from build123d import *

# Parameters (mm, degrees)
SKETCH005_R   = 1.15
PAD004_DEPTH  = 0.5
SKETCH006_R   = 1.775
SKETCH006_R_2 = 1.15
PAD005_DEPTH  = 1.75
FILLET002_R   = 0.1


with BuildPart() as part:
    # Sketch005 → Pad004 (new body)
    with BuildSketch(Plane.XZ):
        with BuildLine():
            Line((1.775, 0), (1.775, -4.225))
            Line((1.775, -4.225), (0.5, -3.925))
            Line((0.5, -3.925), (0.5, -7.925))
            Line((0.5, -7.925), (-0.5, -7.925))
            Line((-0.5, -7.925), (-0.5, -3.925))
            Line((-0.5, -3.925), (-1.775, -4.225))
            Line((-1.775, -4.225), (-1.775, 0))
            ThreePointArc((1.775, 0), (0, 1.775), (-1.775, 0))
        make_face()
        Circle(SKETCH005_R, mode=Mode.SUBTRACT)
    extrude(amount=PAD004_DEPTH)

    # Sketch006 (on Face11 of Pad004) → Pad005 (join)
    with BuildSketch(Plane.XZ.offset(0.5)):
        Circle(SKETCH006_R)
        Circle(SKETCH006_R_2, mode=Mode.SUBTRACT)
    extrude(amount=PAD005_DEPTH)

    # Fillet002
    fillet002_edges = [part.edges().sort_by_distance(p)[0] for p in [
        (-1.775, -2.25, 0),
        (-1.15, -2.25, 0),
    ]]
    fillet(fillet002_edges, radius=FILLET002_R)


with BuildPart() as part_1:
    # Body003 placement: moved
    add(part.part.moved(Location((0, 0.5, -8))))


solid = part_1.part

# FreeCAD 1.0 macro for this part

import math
import FreeCAD as App
import Part
import Sketcher
from FreeCAD import Vector


def edges_at(feature, points):
    """Names of the edges that pass closest to the given points."""
    edges = feature.Shape.Edges
    near = lambda p: min(range(len(edges)), key=lambda i: edges[i].distToShape(Part.Vertex(*p))[0])
    return sorted({f"Edge{near(p) + 1}" for p in points})

doc = App.newDocument("Part")
body = doc.addObject("PartDesign::Body", "Body")

sketch1 = body.newObject("Sketcher::SketchObject", "Sketch")
sketch1.AttachmentSupport = (doc.getObject("XZ_Plane"), [""])
sketch1.MapMode = "FlatFace"
sketch1.addGeometry([
    Part.LineSegment(Vector(1.8, -4.2, 0), Vector(1.8, 0, 0)),
    Part.ArcOfCircle(Part.Circle(Vector(0, 0, 0), Vector(0, 0, 1), 1.8), math.radians(0), math.radians(180)),
    Part.LineSegment(Vector(-1.8, 0, 0), Vector(-1.8, -4.2, 0)),
    Part.LineSegment(Vector(-1.8, -4.2, 0), Vector(-0.5, -3.9, 0)),
    Part.LineSegment(Vector(-0.5, -3.9, 0), Vector(-0.5, -7.9, 0)),
    Part.LineSegment(Vector(-0.5, -7.9, 0), Vector(0.5, -7.9, 0)),
    Part.LineSegment(Vector(0.5, -7.9, 0), Vector(0.5, -3.9, 0)),
    Part.LineSegment(Vector(0.5, -3.9, 0), Vector(1.8, -4.2, 0)),
    Part.Circle(Vector(0, 0, 0), Vector(0, 0, 1), 1.1),
], False)
sketch1.addConstraint([
    Sketcher.Constraint("Tangent", 0, 2, 1, 1),
    Sketcher.Constraint("Tangent", 1, 2, 2, 1),
    Sketcher.Constraint("Coincident", 2, 2, 3, 1),
    Sketcher.Constraint("Coincident", 3, 2, 4, 1),
    Sketcher.Constraint("Coincident", 4, 2, 5, 1),
    Sketcher.Constraint("Coincident", 5, 2, 6, 1),
    Sketcher.Constraint("Coincident", 6, 2, 7, 1),
    Sketcher.Constraint("Coincident", 7, 2, 0, 1),
    Sketcher.Constraint("Vertical", 0),
    Sketcher.Constraint("Vertical", 2),
    Sketcher.Constraint("Vertical", 4),
    Sketcher.Constraint("Horizontal", 5),
    Sketcher.Constraint("Vertical", 6),
    Sketcher.Constraint("Coincident", 1, 3, -1, 1),
    Sketcher.Constraint("Coincident", 8, 3, -1, 1),
    Sketcher.Constraint("Symmetric", 3, 2, 6, 2, -2),
    Sketcher.Constraint("Horizontal", 2, 2, 7, 2),
    Sketcher.Constraint("Diameter", 8, 2.3),
    Sketcher.Constraint("DistanceX", 5, 1, 5, 2, 1.0),
    Sketcher.Constraint("DistanceY", 4, 2, 4, 1, 4.0),
    Sketcher.Constraint("Radius", 1, 1.775),
    Sketcher.Constraint("DistanceY", 2, 2, 3, 2, 0.3),
    Sketcher.Constraint("DistanceY", 0, 1, 0, 2, 4.225),
])
pad1 = body.newObject("PartDesign::Pad", "Pad")
pad1.Profile = sketch1
pad1.Length = 0.5

sketch2 = body.newObject("Sketcher::SketchObject", "Sketch001")
sketch2.AttachmentSupport = (doc.getObject("XZ_Plane"), [""])
sketch2.MapMode = "FlatFace"
sketch2.AttachmentOffset = App.Placement(Vector(0, 0, 0.5), App.Rotation())
sketch2.addGeometry([
    Part.Circle(Vector(0, 0, 0), Vector(0, 0, 1), 1.8),
    Part.Circle(Vector(0, 0, 0), Vector(0, 0, 1), 1.1),
], False)
sketch2.addConstraint([
    Sketcher.Constraint("Coincident", 0, 3, -1, 1),
    Sketcher.Constraint("Coincident", 1, 3, -1, 1),
    Sketcher.Constraint("Diameter", 1, 2.3),
    Sketcher.Constraint("Diameter", 0, 3.55),
])
pad2 = body.newObject("PartDesign::Pad", "Pad001")
pad2.Profile = sketch2
pad2.Length = 1.75
doc.recompute()

fillet = body.newObject("PartDesign::Fillet", "Fillet")
fillet.Base = (pad2, edges_at(pad2, [(-1.775, -2.25, 0), (-1.15, -2.25, 0)]))
fillet.Radius = 0.1
body2 = doc.addObject("PartDesign::Body", "Body001")
doc.recompute()

body.Placement = App.Placement(Vector(0, 0.5, -8), App.Rotation(Vector(0, 0, 1), 0))
boolean = body2.newObject("PartDesign::Boolean", "Boolean")
boolean.Type = "Fuse"
boolean.addObjects([body])

doc.recompute()
